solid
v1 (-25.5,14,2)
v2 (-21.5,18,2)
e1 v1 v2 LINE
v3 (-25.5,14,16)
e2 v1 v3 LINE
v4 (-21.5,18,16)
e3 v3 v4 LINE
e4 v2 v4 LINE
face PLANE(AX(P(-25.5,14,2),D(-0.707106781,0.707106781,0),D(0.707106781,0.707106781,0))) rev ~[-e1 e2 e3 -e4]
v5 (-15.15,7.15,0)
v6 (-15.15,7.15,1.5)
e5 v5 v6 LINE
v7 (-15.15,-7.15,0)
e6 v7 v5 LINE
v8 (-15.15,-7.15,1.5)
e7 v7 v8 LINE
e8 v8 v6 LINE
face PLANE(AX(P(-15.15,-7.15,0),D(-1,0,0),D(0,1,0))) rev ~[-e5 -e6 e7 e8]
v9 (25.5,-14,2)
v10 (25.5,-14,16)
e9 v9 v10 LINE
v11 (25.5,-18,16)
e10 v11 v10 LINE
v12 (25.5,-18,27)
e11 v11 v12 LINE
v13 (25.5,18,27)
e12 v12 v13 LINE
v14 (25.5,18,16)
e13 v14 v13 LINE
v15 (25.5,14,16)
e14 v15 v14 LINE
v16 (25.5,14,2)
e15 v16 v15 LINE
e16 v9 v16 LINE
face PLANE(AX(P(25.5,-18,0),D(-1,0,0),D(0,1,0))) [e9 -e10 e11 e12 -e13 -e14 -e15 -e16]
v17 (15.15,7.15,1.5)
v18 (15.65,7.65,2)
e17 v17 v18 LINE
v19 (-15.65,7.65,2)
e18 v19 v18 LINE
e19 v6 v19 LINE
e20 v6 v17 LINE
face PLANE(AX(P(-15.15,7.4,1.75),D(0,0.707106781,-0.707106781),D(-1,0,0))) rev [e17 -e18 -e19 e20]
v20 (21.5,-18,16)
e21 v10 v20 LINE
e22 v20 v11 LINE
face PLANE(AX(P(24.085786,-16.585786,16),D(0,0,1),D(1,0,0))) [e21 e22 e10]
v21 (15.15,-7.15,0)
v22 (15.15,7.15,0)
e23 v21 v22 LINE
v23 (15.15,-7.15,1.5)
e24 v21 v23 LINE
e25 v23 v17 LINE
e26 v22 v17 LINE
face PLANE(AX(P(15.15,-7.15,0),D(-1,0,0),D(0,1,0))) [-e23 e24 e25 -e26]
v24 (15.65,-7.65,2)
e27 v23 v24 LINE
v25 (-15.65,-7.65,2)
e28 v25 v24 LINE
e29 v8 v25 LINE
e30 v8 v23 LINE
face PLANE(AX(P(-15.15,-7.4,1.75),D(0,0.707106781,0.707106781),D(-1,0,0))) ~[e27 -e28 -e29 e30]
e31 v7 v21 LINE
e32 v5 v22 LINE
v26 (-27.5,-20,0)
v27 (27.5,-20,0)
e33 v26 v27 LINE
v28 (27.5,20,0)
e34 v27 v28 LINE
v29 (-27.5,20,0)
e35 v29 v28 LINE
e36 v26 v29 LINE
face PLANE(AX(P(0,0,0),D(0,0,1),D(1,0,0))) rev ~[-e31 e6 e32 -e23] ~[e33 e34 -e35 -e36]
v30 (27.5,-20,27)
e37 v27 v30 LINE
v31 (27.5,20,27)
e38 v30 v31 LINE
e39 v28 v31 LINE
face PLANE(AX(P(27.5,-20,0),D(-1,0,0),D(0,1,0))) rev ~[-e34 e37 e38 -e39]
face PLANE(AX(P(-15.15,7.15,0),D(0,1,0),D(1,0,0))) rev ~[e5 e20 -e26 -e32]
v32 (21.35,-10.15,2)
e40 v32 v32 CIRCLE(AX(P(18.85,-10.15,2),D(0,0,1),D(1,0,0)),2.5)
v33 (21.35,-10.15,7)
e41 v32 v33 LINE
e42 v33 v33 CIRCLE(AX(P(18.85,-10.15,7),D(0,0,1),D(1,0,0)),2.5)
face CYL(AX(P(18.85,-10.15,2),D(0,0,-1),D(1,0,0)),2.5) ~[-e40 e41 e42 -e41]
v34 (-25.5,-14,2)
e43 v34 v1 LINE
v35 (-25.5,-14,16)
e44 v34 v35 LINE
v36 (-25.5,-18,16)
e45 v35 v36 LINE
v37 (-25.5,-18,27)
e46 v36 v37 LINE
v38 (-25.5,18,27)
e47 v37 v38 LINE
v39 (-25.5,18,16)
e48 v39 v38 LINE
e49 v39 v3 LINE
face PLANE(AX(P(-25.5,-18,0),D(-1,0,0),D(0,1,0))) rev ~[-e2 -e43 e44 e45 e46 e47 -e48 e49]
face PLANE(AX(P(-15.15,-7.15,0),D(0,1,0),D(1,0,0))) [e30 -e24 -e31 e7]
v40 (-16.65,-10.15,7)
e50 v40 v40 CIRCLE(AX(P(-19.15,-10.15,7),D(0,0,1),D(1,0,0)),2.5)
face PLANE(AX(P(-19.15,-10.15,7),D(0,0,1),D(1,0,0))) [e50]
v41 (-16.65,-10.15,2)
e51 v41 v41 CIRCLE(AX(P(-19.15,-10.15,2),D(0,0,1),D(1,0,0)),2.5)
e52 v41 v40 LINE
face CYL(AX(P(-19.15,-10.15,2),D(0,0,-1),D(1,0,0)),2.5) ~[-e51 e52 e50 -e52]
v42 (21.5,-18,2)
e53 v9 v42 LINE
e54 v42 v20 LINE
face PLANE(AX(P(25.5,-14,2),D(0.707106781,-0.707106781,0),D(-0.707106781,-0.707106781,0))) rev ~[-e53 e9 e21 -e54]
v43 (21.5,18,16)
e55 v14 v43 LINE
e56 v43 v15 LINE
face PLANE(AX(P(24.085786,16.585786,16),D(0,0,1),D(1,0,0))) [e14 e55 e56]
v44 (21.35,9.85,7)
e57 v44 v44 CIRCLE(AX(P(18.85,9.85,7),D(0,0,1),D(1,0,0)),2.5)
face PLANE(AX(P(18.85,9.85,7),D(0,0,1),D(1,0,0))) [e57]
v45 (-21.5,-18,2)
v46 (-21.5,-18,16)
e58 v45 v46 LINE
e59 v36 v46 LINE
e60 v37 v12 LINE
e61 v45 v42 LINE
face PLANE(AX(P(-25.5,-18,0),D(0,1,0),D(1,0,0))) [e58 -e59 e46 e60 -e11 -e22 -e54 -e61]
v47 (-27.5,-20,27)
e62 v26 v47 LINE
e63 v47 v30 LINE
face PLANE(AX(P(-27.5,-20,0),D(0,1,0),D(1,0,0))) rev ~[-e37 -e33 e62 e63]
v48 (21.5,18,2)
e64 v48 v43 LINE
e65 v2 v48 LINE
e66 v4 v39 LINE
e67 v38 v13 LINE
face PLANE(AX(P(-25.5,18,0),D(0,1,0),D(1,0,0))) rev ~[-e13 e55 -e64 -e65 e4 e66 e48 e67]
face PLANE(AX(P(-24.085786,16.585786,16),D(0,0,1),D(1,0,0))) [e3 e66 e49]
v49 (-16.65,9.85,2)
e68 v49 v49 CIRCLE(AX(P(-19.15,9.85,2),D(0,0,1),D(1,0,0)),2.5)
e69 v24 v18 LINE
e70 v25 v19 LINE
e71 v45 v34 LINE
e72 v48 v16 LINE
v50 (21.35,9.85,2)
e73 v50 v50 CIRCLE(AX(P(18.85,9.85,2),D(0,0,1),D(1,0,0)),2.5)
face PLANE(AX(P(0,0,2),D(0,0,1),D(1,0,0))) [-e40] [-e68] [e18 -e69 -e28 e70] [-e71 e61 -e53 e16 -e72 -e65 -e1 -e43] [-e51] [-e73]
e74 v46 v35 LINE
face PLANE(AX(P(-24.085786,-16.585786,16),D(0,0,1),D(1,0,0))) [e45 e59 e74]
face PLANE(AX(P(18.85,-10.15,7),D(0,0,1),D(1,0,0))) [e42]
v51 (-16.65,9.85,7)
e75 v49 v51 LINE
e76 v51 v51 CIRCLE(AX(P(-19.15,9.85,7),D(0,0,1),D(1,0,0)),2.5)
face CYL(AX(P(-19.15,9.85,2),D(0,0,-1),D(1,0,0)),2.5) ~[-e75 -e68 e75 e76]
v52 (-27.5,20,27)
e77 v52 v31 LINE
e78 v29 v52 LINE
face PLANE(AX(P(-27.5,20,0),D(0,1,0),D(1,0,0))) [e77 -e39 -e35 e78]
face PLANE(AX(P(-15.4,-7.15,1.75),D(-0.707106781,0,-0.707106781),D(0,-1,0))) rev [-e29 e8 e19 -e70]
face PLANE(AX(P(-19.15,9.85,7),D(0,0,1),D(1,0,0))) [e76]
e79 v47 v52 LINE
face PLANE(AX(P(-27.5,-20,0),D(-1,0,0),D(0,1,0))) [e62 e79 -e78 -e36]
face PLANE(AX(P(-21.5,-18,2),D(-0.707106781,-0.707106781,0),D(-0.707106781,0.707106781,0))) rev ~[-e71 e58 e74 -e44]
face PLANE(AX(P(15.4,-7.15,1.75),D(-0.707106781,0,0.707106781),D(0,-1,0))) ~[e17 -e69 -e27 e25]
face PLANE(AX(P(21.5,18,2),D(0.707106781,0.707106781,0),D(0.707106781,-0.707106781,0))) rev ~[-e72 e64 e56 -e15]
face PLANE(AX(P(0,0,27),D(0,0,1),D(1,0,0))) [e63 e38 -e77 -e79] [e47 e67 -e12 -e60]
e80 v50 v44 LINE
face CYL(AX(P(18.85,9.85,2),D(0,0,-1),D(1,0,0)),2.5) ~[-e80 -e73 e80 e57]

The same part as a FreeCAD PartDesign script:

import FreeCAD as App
import Part
import Sketcher

V = App.Vector
Q = App.Units.Quantity


def edges_at(feature, points):
    """Names of the edges that pass closest to the given points."""
    edges = feature.Shape.Edges
    near = lambda p: min(range(len(edges)), key=lambda i: edges[i].distToShape(Part.Vertex(*p))[0])
    return sorted({f"Edge{near(p) + 1}" for p in points})


def add_polygon(sketch, points):
    """Adds a closed chain of lines whose ends are joined by coincident constraints."""
    first, n = sketch.GeometryCount, len(points)
    for a, b in zip(points, points[1:] + points[:1]):
        sketch.addGeometry(Part.LineSegment(App.Vector(*a, 0), App.Vector(*b, 0)), False)
    for i in range(n):
        sketch.addConstraint(Sketcher.Constraint("Coincident", first + i, 2, first + (i + 1) % n, 1))

doc = App.newDocument("Part")
body = doc.addObject("PartDesign::Body", "Body")

sketch1 = body.newObject("Sketcher::SketchObject", "Sketch")
sketch1.AttachmentSupport = (doc.getObject("XY_Plane"), [""])
sketch1.MapMode = "FlatFace"
add_polygon(sketch1, [(-25.5, 18), (-25.5, -18), (25.5, -18), (25.5, 18)])
add_polygon(sketch1, [(15.15, -7.15), (-15.15, -7.15), (-15.15, 7.15), (15.15, 7.15)])
sketch1.addConstraint(Sketcher.Constraint("Vertical", 0))
sketch1.addConstraint(Sketcher.Constraint("Horizontal", 1))
sketch1.addConstraint(Sketcher.Constraint("Vertical", 2))
sketch1.addConstraint(Sketcher.Constraint("Horizontal", 3))
sketch1.addConstraint(Sketcher.Constraint("Horizontal", 4))
sketch1.addConstraint(Sketcher.Constraint("Vertical", 5))
sketch1.addConstraint(Sketcher.Constraint("Horizontal", 6))
sketch1.addConstraint(Sketcher.Constraint("Vertical", 7))
sketch1.addConstraint(Sketcher.Constraint("Symmetric", 0, 2, 2, 2, -1, 1))
sketch1.addConstraint(Sketcher.Constraint("Symmetric", 4, 2, 6, 2, -1, 1))
sketch1.addConstraint(Sketcher.Constraint("DistanceX", 1, 1, 1, 2, Q("51 mm")))
sketch1.addConstraint(Sketcher.Constraint("DistanceY", 0, 2, 0, 1, Q("36 mm")))
sketch1.addConstraint(Sketcher.Constraint("DistanceX", 4, 2, 4, 1, Q("30.3 mm")))
sketch1.addConstraint(Sketcher.Constraint("DistanceY", 5, 1, 5, 2, Q("14.3 mm")))
pad1 = body.newObject("PartDesign::Pad", "Pad")
pad1.Profile = sketch1
pad1.Length = 2

sketch2 = body.newObject("Sketcher::SketchObject", "Sketch001")
sketch2.AttachmentSupport = (doc.getObject("XY_Plane"), [""])
sketch2.MapMode = "FlatFace"
sketch2.AttachmentOffset = App.Placement(V(0, 0, 2), App.Rotation())
sketch2.addGeometry(Part.Circle(V(-19.15, 9.85, 0), V(0, 0, 1), 2.5), False)
sketch2.addGeometry(Part.Circle(V(18.85, 9.85, 0), V(0, 0, 1), 2.5), False)
sketch2.addGeometry(Part.Circle(V(18.85, -10.15, 0), V(0, 0, 1), 2.5), False)
sketch2.addGeometry(Part.Circle(V(-19.15, -10.15, 0), V(0, 0, 1), 2.5), False)
sketch2.addConstraint(Sketcher.Constraint("Equal", 0, 1))
sketch2.addConstraint(Sketcher.Constraint("Equal", 1, 2))
sketch2.addConstraint(Sketcher.Constraint("Equal", 2, 3))
sketch2.addConstraint(Sketcher.Constraint("Horizontal", 0, 3, 1, 3))
sketch2.addConstraint(Sketcher.Constraint("Horizontal", 2, 3, 3, 3))
sketch2.addConstraint(Sketcher.Constraint("Vertical", 1, 3, 2, 3))
sketch2.addConstraint(Sketcher.Constraint("Vertical", 0, 3, 3, 3))
sketch2.addConstraint(Sketcher.Constraint("Diameter", 0, Q("5 mm")))
sketch2.addConstraint(Sketcher.Constraint("DistanceX", 0, 3, 1, 3, Q("38 mm")))
sketch2.addConstraint(Sketcher.Constraint("DistanceY", 2, 3, 1, 3, Q("20 mm")))
sketch2.addConstraint(Sketcher.Constraint("DistanceX", 0, 3, -1, 1, Q("19.15 mm")))
sketch2.addConstraint(Sketcher.Constraint("DistanceY", -1, 1, 0, 3, Q("9.85 mm")))
pad2 = body.newObject("PartDesign::Pad", "Pad001")
pad2.Profile = sketch2
pad2.Length = 5

sketch3 = body.newObject("Sketcher::SketchObject", "Sketch002")
sketch3.AttachmentSupport = (doc.getObject("XY_Plane"), [""])
sketch3.MapMode = "FlatFace"
sketch3.AttachmentOffset = App.Placement(V(0, 0, 2), App.Rotation())
add_polygon(sketch3, [(-21.5, 18), (-25.5, 18), (-25.5, 14)])
add_polygon(sketch3, [(-25.5, -14), (-25.5, -18), (-21.5, -18)])
add_polygon(sketch3, [(21.5, -18), (25.5, -18), (25.5, -14)])
add_polygon(sketch3, [(25.5, 14), (25.5, 18), (21.5, 18)])
sketch3.addConstraint(Sketcher.Constraint("Horizontal", 0))
sketch3.addConstraint(Sketcher.Constraint("Vertical", 1))
sketch3.addConstraint(Sketcher.Constraint("Vertical", 3))
sketch3.addConstraint(Sketcher.Constraint("Horizontal", 4))
sketch3.addConstraint(Sketcher.Constraint("Horizontal", 6))
sketch3.addConstraint(Sketcher.Constraint("Vertical", 7))
sketch3.addConstraint(Sketcher.Constraint("Vertical", 9))
sketch3.addConstraint(Sketcher.Constraint("Horizontal", 10))
sketch3.addConstraint(Sketcher.Constraint("Symmetric", 0, 2, 6, 2, -1, 1))
sketch3.addConstraint(Sketcher.Constraint("Symmetric", 3, 2, 9, 2, -1, 1))
sketch3.addConstraint(Sketcher.Constraint("Symmetric", 3, 2, 6, 2, -2))
sketch3.addConstraint(Sketcher.Constraint("Perpendicular", 2, 5))
sketch3.addConstraint(Sketcher.Constraint("Perpendicular", 5, 8))
sketch3.addConstraint(Sketcher.Constraint("Perpendicular", 8, 11))
sketch3.addConstraint(Sketcher.Constraint("Horizontal", 5, 2, 7, 2))
sketch3.addConstraint(Sketcher.Constraint("Horizontal", 1, 2, 11, 2))
sketch3.addConstraint(Sketcher.Constraint("Vertical", 2, 2, 4, 2))
sketch3.addConstraint(Sketcher.Constraint("Vertical", 8, 2, 10, 2))
sketch3.addConstraint(Sketcher.Constraint("DistanceX", 0, 2, 0, 1, Q("4 mm")))
sketch3.addConstraint(Sketcher.Constraint("DistanceY", -1, 1, 0, 2, Q("18 mm")))
sketch3.addConstraint(Sketcher.Constraint("DistanceX", 4, 2, 6, 2, Q("47 mm")))
pad3 = body.newObject("PartDesign::Pad", "Pad002")
pad3.Profile = sketch3
pad3.Length = 14

sketch4 = body.newObject("Sketcher::SketchObject", "Sketch003")
sketch4.AttachmentSupport = (doc.getObject("XY_Plane"), [""])
sketch4.MapMode = "FlatFace"
add_polygon(sketch4, [(-27.5, 20), (-27.5, -20), (27.5, -20), (27.5, 20)])
add_polygon(sketch4, [(25.5, -18), (-25.5, -18), (-25.5, 18), (25.5, 18)])
sketch4.addConstraint(Sketcher.Constraint("Vertical", 0))
sketch4.addConstraint(Sketcher.Constraint("Horizontal", 1))
sketch4.addConstraint(Sketcher.Constraint("Vertical", 2))
sketch4.addConstraint(Sketcher.Constraint("Horizontal", 3))
sketch4.addConstraint(Sketcher.Constraint("Horizontal", 4))
sketch4.addConstraint(Sketcher.Constraint("Vertical", 5))
sketch4.addConstraint(Sketcher.Constraint("Horizontal", 6))
sketch4.addConstraint(Sketcher.Constraint("Vertical", 7))
sketch4.addConstraint(Sketcher.Constraint("Symmetric", 0, 2, 2, 2, -1, 1))
sketch4.addConstraint(Sketcher.Constraint("Symmetric", 4, 2, 6, 2, -1, 1))
sketch4.addConstraint(Sketcher.Constraint("DistanceX", 1, 1, 1, 2, Q("55 mm")))
sketch4.addConstraint(Sketcher.Constraint("DistanceX", 4, 2, 4, 1, Q("51 mm")))
sketch4.addConstraint(Sketcher.Constraint("DistanceY", 0, 2, 0, 1, Q("40 mm")))
sketch4.addConstraint(Sketcher.Constraint("DistanceY", 5, 1, 5, 2, Q("36 mm")))
pad4 = body.newObject("PartDesign::Pad", "Pad003")
pad4.Profile = sketch4
pad4.Length = 27
doc.recompute()

chamfer = body.newObject("PartDesign::Chamfer", "Chamfer")
chamfer.Base = (pad4, edges_at(pad4, [
    (0, 7.15, 2),
    (15.15, 0, 2),
    (0, -7.15, 2),
    (-15.15, 0, 2),
]))
chamfer.Size = 0.5

doc.recompute()
